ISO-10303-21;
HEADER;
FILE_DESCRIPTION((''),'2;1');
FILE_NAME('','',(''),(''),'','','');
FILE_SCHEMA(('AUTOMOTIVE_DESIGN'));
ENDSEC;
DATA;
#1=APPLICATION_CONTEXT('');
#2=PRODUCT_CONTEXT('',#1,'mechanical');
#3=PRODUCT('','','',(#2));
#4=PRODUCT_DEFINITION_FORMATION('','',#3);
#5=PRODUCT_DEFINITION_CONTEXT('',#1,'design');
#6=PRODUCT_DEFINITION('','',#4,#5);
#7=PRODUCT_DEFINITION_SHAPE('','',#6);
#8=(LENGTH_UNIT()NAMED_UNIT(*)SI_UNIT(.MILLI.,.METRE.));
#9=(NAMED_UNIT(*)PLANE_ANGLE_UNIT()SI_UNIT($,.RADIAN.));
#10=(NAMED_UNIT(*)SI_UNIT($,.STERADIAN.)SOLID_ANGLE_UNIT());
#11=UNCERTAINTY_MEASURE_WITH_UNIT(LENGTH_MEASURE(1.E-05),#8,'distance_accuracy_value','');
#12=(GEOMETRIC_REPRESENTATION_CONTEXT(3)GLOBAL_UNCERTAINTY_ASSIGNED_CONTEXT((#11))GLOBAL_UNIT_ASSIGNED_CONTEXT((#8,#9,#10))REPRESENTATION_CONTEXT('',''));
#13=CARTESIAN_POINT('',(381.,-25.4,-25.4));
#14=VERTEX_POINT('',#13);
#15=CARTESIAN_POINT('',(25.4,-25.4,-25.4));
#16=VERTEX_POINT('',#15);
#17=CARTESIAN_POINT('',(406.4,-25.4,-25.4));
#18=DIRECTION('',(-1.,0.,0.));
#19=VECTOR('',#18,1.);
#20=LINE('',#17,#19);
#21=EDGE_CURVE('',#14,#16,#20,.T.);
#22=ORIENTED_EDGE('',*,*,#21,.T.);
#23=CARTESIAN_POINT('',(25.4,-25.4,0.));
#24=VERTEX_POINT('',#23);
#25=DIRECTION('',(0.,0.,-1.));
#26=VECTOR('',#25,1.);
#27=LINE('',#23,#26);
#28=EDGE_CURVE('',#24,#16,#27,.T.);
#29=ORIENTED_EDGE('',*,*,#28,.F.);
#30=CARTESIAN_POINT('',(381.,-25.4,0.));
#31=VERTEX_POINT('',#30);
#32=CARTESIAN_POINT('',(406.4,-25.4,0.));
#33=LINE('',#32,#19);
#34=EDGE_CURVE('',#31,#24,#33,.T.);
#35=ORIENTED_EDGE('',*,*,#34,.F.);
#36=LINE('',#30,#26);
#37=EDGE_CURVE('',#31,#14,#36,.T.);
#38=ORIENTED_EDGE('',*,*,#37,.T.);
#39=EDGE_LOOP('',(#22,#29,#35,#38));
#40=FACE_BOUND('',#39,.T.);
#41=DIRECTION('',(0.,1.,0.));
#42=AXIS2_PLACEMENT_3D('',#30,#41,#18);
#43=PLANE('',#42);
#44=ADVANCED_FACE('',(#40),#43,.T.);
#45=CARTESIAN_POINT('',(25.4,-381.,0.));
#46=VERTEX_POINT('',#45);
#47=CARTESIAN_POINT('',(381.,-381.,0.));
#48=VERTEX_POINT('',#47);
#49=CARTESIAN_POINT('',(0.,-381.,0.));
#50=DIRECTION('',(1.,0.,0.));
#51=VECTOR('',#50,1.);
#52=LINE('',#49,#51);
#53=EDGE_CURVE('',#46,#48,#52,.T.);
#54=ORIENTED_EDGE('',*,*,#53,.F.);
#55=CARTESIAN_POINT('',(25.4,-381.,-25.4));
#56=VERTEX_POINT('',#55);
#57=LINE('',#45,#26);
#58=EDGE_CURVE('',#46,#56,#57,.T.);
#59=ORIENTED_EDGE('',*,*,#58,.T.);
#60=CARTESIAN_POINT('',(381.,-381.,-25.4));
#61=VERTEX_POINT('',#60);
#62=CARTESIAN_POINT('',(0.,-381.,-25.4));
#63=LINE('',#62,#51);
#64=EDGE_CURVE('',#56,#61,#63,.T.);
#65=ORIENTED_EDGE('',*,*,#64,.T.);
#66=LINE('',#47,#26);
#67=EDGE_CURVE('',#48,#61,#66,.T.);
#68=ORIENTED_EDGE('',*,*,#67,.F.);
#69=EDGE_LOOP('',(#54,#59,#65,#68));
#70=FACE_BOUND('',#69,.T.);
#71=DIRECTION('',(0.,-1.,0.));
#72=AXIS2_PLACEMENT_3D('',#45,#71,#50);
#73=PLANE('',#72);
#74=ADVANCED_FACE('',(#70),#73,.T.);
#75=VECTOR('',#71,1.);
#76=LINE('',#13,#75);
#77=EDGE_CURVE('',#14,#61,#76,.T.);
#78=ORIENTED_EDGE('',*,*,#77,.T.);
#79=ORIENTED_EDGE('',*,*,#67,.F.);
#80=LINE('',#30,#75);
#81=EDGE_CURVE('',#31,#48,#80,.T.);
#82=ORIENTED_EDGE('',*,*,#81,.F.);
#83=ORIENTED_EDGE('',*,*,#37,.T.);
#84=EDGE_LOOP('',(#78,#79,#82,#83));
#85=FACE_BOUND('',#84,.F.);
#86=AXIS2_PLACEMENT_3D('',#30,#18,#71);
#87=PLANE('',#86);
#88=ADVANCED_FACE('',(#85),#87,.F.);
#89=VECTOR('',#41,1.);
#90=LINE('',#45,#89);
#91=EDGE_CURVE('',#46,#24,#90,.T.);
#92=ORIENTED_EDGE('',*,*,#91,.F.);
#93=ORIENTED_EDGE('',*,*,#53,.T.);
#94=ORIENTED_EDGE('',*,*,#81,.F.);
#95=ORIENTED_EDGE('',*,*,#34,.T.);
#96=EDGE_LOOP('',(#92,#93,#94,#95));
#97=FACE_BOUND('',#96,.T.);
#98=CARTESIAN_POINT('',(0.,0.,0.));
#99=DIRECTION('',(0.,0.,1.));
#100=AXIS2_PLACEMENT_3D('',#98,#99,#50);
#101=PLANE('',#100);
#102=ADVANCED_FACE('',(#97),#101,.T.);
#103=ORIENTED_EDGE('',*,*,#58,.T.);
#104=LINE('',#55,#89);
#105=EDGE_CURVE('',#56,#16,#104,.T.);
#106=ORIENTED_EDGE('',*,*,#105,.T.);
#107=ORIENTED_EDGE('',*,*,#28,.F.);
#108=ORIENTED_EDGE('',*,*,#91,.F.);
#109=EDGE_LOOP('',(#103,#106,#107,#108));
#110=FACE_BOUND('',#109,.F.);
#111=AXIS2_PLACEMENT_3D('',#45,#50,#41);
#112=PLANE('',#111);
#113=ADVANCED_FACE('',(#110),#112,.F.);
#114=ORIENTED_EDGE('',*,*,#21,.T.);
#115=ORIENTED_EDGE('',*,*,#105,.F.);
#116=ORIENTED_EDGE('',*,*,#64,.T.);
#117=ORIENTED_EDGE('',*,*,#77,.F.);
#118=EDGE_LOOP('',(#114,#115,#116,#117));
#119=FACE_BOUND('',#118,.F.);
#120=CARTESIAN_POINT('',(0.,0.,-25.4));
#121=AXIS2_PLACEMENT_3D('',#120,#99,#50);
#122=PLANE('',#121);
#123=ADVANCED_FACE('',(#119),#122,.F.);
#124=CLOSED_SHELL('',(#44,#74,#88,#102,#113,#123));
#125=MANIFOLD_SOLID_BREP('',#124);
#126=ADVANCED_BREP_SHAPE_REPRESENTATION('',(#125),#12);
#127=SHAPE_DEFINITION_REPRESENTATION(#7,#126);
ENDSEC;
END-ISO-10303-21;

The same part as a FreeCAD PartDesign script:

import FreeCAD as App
import Part
import Sketcher

V = App.Vector
Q = App.Units.Quantity


def add_polygon(sketch, points):
    """Adds a closed chain of lines whose ends are joined by coincident constraints."""
    first, n = sketch.GeometryCount, len(points)
    for a, b in zip(points, points[1:] + points[:1]):
        sketch.addGeometry(Part.LineSegment(App.Vector(*a, 0), App.Vector(*b, 0)), False)
    for i in range(n):
        sketch.addConstraint(Sketcher.Constraint("Coincident", first + i, 2, first + (i + 1) % n, 1))

doc = App.newDocument("Part")
body = doc.addObject("PartDesign::Body", "Body")

# Sketch on XY plane
sketch1 = body.newObject("Sketcher::SketchObject", "Sketch")
sketch1.AttachmentSupport = (doc.getObject("XY_Plane"), [""])
sketch1.MapMode = "FlatFace"
add_polygon(sketch1, [(381, -25), (25, -25), (25, -381), (381, -381)])  # lines 0-3
sketch1.addConstraint([
    Sketcher.Constraint("Horizontal", 0),
    Sketcher.Constraint("Vertical", 1),
    Sketcher.Constraint("Horizontal", 2),
    Sketcher.Constraint("Vertical", 3),
    Sketcher.Constraint("Equal", 2, 1),
    Sketcher.Constraint("DistanceX", -1, 1, 0, 2, Q("1 in")),
    Sketcher.Constraint("DistanceY", 0, 2, -1, 1, Q("1 in")),
    Sketcher.Constraint("DistanceY", 1, 2, -1, 1, Q("15 in")),
])
pad1 = body.newObject("PartDesign::Pad", "Pad")
pad1.Profile = sketch1
pad1.Length = Q("1 in")
pad1.Reversed = True

doc.recompute()
